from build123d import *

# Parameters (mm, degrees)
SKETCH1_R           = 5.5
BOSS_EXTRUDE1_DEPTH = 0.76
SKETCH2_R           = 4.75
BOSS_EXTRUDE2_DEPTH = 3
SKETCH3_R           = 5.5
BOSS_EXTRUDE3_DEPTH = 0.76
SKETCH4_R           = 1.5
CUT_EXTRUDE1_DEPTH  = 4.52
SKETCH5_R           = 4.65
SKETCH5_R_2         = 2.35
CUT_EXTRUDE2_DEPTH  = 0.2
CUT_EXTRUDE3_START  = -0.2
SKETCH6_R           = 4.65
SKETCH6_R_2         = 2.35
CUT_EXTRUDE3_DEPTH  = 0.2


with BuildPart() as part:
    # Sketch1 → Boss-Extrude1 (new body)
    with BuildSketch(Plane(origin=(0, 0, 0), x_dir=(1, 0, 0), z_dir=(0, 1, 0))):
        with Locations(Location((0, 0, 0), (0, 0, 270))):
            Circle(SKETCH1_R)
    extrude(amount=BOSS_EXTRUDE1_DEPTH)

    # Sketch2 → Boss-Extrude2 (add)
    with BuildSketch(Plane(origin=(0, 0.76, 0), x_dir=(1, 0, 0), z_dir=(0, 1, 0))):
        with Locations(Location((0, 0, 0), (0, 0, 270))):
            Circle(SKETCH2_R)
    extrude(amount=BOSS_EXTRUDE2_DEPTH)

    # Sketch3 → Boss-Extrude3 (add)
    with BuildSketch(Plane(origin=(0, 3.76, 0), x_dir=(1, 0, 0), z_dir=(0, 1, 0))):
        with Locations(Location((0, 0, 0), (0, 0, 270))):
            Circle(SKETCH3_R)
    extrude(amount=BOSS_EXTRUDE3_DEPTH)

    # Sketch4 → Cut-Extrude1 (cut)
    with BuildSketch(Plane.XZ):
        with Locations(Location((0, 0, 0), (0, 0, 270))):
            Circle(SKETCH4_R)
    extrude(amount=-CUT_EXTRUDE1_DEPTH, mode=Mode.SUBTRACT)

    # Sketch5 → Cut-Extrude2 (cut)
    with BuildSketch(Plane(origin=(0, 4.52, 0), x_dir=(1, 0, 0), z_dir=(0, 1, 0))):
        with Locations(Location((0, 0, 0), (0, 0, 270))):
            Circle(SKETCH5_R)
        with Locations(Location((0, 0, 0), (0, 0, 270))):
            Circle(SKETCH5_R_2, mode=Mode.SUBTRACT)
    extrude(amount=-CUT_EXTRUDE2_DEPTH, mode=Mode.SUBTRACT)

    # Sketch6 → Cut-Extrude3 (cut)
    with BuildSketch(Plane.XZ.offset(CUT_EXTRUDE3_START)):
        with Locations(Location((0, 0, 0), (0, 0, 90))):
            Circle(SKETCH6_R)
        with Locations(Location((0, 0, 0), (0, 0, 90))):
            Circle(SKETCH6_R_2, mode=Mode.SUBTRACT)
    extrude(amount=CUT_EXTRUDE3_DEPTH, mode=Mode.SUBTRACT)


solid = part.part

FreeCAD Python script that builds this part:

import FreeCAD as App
import Part
import Sketcher
from FreeCAD import Vector

doc = App.newDocument("Part")
params = doc.addObject("Spreadsheet::Sheet", "Params")
for row, (alias, value) in enumerate([
    ("sketch1_diameter", "11 mm"),
    ("pad1_length", "0.76 mm"),
    ("sketch2_diameter", "9.5 mm"),
    ("pad2_length", "3 mm"),
    ("sketch3_diameter", "11 mm"),
    ("pad3_length", "0.76 mm"),
    ("sketch4_diameter", "3 mm"),
    ("pocket1_length", "4.52 mm"),
    ("sketch5_diameter", "9.3 mm"),
    ("sketch5_diameter2", "4.7 mm"),
    ("pocket2_length", "0.2 mm"),
    ("sketch6_diameter", "9.3 mm"),
    ("sketch6_diameter2", "4.7 mm"),
    ("pocket3_length", "0.2 mm"),
], start=1):
    params.set(f"A{row}", alias)
    params.set(f"B{row}", "=" + value)
    params.setAlias(f"B{row}", alias)

body = doc.addObject("PartDesign::Body", "Body")

# Sketch on XZ plane
sketch1 = body.newObject("Sketcher::SketchObject", "Sketch")
sketch1.AttachmentSupport = (doc.getObject("XZ_Plane"), [""])
sketch1.MapMode = "FlatFace"
sketch1.addGeometry(Part.Circle(Vector(0, 0, 0), Vector(0, 0, 1), 6), False)
sketch1.addConstraint([
    Sketcher.Constraint("Coincident", 0, 3, -1, 1),
    Sketcher.Constraint("Diameter", 0, 11.0),
])
sketch1.setExpression("Constraints[1]", "Params.sketch1_diameter")
pad1 = body.newObject("PartDesign::Pad", "Pad")
pad1.Profile = sketch1
pad1.setExpression("Length", "Params.pad1_length")
pad1.Reversed = True

# Sketch on XZ plane
sketch2 = body.newObject("Sketcher::SketchObject", "Sketch001")
sketch2.AttachmentSupport = (doc.getObject("XZ_Plane"), [""])
sketch2.MapMode = "FlatFace"
sketch2.AttachmentOffset = App.Placement(Vector(0, 0, -0.76), App.Rotation())
sketch2.addGeometry(Part.Circle(Vector(0, 0, 0), Vector(0, 0, 1), 4.8), False)
sketch2.addConstraint([
    Sketcher.Constraint("Coincident", 0, 3, -1, 1),
    Sketcher.Constraint("Diameter", 0, 9.5),
])
sketch2.setExpression("Constraints[1]", "Params.sketch2_diameter")
pad2 = body.newObject("PartDesign::Pad", "Pad001")
pad2.Profile = sketch2
pad2.setExpression("Length", "Params.pad2_length")
pad2.Reversed = True

# Sketch on XZ plane
sketch3 = body.newObject("Sketcher::SketchObject", "Sketch002")
sketch3.AttachmentSupport = (doc.getObject("XZ_Plane"), [""])
sketch3.MapMode = "FlatFace"
sketch3.AttachmentOffset = App.Placement(Vector(0, 0, -3.76), App.Rotation())
sketch3.addGeometry(Part.Circle(Vector(0, 0, 0), Vector(0, 0, 1), 6), False)
sketch3.addConstraint([
    Sketcher.Constraint("Coincident", 0, 3, -1, 1),
    Sketcher.Constraint("Diameter", 0, 11.0),
])
sketch3.setExpression("Constraints[1]", "Params.sketch3_diameter")
pad3 = body.newObject("PartDesign::Pad", "Pad002")
pad3.Profile = sketch3
pad3.setExpression("Length", "Params.pad3_length")
pad3.Reversed = True

# Sketch on XZ plane
sketch4 = body.newObject("Sketcher::SketchObject", "Sketch003")
sketch4.AttachmentSupport = (doc.getObject("XZ_Plane"), [""])
sketch4.MapMode = "FlatFace"
sketch4.addGeometry(Part.Circle(Vector(0, 0, 0), Vector(0, 0, 1), 1.5), False)
sketch4.addConstraint([
    Sketcher.Constraint("Coincident", 0, 3, -1, 1),
    Sketcher.Constraint("Diameter", 0, 3.0),
])
sketch4.setExpression("Constraints[1]", "Params.sketch4_diameter")
pocket1 = body.newObject("PartDesign::Pocket", "Pocket")
pocket1.Profile = sketch4
pocket1.setExpression("Length", "Params.pocket1_length")

# Sketch on XZ plane
sketch5 = body.newObject("Sketcher::SketchObject", "Sketch004")
sketch5.AttachmentSupport = (doc.getObject("XZ_Plane"), [""])
sketch5.MapMode = "FlatFace"
sketch5.AttachmentOffset = App.Placement(Vector(0, 0, -4.52), App.Rotation())
sketch5.addGeometry([
    Part.Circle(Vector(0, 0, 0), Vector(0, 0, 1), 4.7),
    Part.Circle(Vector(0, 0, 0), Vector(0, 0, 1), 2.4),
], False)
sketch5.addConstraint([
    Sketcher.Constraint("Coincident", 0, 3, -1, 1),
    Sketcher.Constraint("Coincident", 1, 3, -1, 1),
    Sketcher.Constraint("Diameter", 0, 9.3),
    Sketcher.Constraint("Diameter", 1, 4.7),
])
sketch5.setExpression("Constraints[2]", "Params.sketch5_diameter")
sketch5.setExpression("Constraints[3]", "Params.sketch5_diameter2")
pocket2 = body.newObject("PartDesign::Pocket", "Pocket001")
pocket2.Profile = sketch5
pocket2.setExpression("Length", "Params.pocket2_length")
pocket2.Reversed = True

# Sketch on XZ plane
sketch6 = body.newObject("Sketcher::SketchObject", "Sketch005")
sketch6.AttachmentSupport = (doc.getObject("XZ_Plane"), [""])
sketch6.MapMode = "FlatFace"
sketch6.AttachmentOffset = App.Placement(Vector(0, 0, -0.2), App.Rotation())
sketch6.addGeometry([
    Part.Circle(Vector(0, 0, 0), Vector(0, 0, 1), 4.7),
    Part.Circle(Vector(0, 0, 0), Vector(0, 0, 1), 2.4),
], False)
sketch6.addConstraint([
    Sketcher.Constraint("Coincident", 0, 3, -1, 1),
    Sketcher.Constraint("Coincident", 1, 3, -1, 1),
    Sketcher.Constraint("Diameter", 0, 9.3),
    Sketcher.Constraint("Diameter", 1, 4.7),
])
sketch6.setExpression("Constraints[2]", "Params.sketch6_diameter")
sketch6.setExpression("Constraints[3]", "Params.sketch6_diameter2")
pocket3 = body.newObject("PartDesign::Pocket", "Pocket002")
pocket3.Profile = sketch6
pocket3.setExpression("Length", "Params.pocket3_length")
pocket3.Reversed = True

doc.recompute()
